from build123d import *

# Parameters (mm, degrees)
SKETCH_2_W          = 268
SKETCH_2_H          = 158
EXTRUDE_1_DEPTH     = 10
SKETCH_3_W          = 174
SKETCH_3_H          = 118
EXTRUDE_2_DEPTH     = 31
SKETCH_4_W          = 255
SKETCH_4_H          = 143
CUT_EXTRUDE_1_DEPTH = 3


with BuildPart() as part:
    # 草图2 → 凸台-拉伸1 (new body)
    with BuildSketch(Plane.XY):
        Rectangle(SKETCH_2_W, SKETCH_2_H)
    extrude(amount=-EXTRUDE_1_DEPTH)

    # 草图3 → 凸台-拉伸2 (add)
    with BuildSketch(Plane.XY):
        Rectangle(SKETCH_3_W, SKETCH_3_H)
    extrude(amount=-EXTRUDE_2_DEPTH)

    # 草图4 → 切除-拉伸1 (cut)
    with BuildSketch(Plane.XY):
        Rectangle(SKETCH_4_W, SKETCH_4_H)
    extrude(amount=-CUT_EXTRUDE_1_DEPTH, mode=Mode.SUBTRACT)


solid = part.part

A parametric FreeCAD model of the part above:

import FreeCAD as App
import Part
import Sketcher


def add_polygon(sketch, points):
    """Adds a closed chain of lines whose ends are joined by coincident constraints."""
    first, n = sketch.GeometryCount, len(points)
    for a, b in zip(points, points[1:] + points[:1]):
        sketch.addGeometry(Part.LineSegment(App.Vector(*a, 0), App.Vector(*b, 0)), False)
    for i in range(n):
        sketch.addConstraint(Sketcher.Constraint("Coincident", first + i, 2, first + (i + 1) % n, 1))

doc = App.newDocument("Part")
params = doc.addObject("Spreadsheet::Sheet", "Params")
for row, (alias, value) in enumerate([
    ("sketch1_width", "268 mm"),
    ("sketch1_height", "158 mm"),
    ("pad1_length", "10 mm"),
    ("sketch2_width", "174 mm"),
    ("sketch2_height", "118 mm"),
    ("pad2_length", "31 mm"),
    ("sketch3_width", "255 mm"),
    ("sketch3_height", "143 mm"),
    ("pocket1_length", "3 mm"),
], start=1):
    params.set(f"A{row}", alias)
    params.set(f"B{row}", "=" + value)
    params.setAlias(f"B{row}", alias)

body = doc.addObject("PartDesign::Body", "Body")

# Sketch on XY plane
sketch1 = doc.addObject("Sketcher::SketchObject", "Sketch")
body.addObject(sketch1)
sketch1.AttachmentSupport = (doc.XY_Plane, [""])
sketch1.MapMode = "FlatFace"
add_polygon(sketch1, [(-134, 79), (-134, -79), (134, -79), (134, 79)])  # lines 0-3
sketch1.addConstraint(Sketcher.Constraint("Vertical", 0))
sketch1.addConstraint(Sketcher.Constraint("Horizontal", 1))
sketch1.addConstraint(Sketcher.Constraint("Vertical", 2))
sketch1.addConstraint(Sketcher.Constraint("Horizontal", 3))
sketch1.addConstraint(Sketcher.Constraint("Symmetric", 0, 2, 2, 2, -1, 1))
sketch1.addConstraint(Sketcher.Constraint("DistanceX", 1, 1, 1, 2, 268.0))
sketch1.addConstraint(Sketcher.Constraint("DistanceY", 0, 2, 0, 1, 158.0))
sketch1.setExpression("Constraints[9]", "Params.sketch1_width")
sketch1.setExpression("Constraints[10]", "Params.sketch1_height")
pad1 = doc.addObject("PartDesign::Pad", "Pad")
body.addObject(pad1)
pad1.Profile = sketch1
pad1.setExpression("Length", "Params.pad1_length")
pad1.Reversed = True

# Sketch on XY plane
sketch2 = doc.addObject("Sketcher::SketchObject", "Sketch001")
body.addObject(sketch2)
sketch2.AttachmentSupport = (doc.XY_Plane, [""])
sketch2.MapMode = "FlatFace"
add_polygon(sketch2, [(-87, 59), (-87, -59), (87, -59), (87, 59)])  # lines 0-3
sketch2.addConstraint(Sketcher.Constraint("Vertical", 0))
sketch2.addConstraint(Sketcher.Constraint("Horizontal", 1))
sketch2.addConstraint(Sketcher.Constraint("Vertical", 2))
sketch2.addConstraint(Sketcher.Constraint("Horizontal", 3))
sketch2.addConstraint(Sketcher.Constraint("Symmetric", 0, 2, 2, 2, -1, 1))
sketch2.addConstraint(Sketcher.Constraint("DistanceX", 1, 1, 1, 2, 174.0))
sketch2.addConstraint(Sketcher.Constraint("DistanceY", 0, 2, 0, 1, 118.0))
sketch2.setExpression("Constraints[9]", "Params.sketch2_width")
sketch2.setExpression("Constraints[10]", "Params.sketch2_height")
pad2 = doc.addObject("PartDesign::Pad", "Pad001")
body.addObject(pad2)
pad2.Profile = sketch2
pad2.setExpression("Length", "Params.pad2_length")
pad2.Reversed = True

# Sketch on XY plane
sketch3 = doc.addObject("Sketcher::SketchObject", "Sketch002")
body.addObject(sketch3)
sketch3.AttachmentSupport = (doc.XY_Plane, [""])
sketch3.MapMode = "FlatFace"
add_polygon(sketch3, [(-128, 72), (-128, -72), (128, -72), (128, 72)])  # lines 0-3
sketch3.addConstraint(Sketcher.Constraint("Vertical", 0))
sketch3.addConstraint(Sketcher.Constraint("Horizontal", 1))
sketch3.addConstraint(Sketcher.Constraint("Vertical", 2))
sketch3.addConstraint(Sketcher.Constraint("Horizontal", 3))
sketch3.addConstraint(Sketcher.Constraint("Symmetric", 0, 2, 2, 2, -1, 1))
sketch3.addConstraint(Sketcher.Constraint("DistanceX", 1, 1, 1, 2, 255.0))
sketch3.addConstraint(Sketcher.Constraint("DistanceY", 0, 2, 0, 1, 143.0))
sketch3.setExpression("Constraints[9]", "Params.sketch3_width")
sketch3.setExpression("Constraints[10]", "Params.sketch3_height")
pocket1 = doc.addObject("PartDesign::Pocket", "Pocket")
body.addObject(pocket1)
pocket1.Profile = sketch3
pocket1.setExpression("Length", "Params.pocket1_length")

doc.recompute()
